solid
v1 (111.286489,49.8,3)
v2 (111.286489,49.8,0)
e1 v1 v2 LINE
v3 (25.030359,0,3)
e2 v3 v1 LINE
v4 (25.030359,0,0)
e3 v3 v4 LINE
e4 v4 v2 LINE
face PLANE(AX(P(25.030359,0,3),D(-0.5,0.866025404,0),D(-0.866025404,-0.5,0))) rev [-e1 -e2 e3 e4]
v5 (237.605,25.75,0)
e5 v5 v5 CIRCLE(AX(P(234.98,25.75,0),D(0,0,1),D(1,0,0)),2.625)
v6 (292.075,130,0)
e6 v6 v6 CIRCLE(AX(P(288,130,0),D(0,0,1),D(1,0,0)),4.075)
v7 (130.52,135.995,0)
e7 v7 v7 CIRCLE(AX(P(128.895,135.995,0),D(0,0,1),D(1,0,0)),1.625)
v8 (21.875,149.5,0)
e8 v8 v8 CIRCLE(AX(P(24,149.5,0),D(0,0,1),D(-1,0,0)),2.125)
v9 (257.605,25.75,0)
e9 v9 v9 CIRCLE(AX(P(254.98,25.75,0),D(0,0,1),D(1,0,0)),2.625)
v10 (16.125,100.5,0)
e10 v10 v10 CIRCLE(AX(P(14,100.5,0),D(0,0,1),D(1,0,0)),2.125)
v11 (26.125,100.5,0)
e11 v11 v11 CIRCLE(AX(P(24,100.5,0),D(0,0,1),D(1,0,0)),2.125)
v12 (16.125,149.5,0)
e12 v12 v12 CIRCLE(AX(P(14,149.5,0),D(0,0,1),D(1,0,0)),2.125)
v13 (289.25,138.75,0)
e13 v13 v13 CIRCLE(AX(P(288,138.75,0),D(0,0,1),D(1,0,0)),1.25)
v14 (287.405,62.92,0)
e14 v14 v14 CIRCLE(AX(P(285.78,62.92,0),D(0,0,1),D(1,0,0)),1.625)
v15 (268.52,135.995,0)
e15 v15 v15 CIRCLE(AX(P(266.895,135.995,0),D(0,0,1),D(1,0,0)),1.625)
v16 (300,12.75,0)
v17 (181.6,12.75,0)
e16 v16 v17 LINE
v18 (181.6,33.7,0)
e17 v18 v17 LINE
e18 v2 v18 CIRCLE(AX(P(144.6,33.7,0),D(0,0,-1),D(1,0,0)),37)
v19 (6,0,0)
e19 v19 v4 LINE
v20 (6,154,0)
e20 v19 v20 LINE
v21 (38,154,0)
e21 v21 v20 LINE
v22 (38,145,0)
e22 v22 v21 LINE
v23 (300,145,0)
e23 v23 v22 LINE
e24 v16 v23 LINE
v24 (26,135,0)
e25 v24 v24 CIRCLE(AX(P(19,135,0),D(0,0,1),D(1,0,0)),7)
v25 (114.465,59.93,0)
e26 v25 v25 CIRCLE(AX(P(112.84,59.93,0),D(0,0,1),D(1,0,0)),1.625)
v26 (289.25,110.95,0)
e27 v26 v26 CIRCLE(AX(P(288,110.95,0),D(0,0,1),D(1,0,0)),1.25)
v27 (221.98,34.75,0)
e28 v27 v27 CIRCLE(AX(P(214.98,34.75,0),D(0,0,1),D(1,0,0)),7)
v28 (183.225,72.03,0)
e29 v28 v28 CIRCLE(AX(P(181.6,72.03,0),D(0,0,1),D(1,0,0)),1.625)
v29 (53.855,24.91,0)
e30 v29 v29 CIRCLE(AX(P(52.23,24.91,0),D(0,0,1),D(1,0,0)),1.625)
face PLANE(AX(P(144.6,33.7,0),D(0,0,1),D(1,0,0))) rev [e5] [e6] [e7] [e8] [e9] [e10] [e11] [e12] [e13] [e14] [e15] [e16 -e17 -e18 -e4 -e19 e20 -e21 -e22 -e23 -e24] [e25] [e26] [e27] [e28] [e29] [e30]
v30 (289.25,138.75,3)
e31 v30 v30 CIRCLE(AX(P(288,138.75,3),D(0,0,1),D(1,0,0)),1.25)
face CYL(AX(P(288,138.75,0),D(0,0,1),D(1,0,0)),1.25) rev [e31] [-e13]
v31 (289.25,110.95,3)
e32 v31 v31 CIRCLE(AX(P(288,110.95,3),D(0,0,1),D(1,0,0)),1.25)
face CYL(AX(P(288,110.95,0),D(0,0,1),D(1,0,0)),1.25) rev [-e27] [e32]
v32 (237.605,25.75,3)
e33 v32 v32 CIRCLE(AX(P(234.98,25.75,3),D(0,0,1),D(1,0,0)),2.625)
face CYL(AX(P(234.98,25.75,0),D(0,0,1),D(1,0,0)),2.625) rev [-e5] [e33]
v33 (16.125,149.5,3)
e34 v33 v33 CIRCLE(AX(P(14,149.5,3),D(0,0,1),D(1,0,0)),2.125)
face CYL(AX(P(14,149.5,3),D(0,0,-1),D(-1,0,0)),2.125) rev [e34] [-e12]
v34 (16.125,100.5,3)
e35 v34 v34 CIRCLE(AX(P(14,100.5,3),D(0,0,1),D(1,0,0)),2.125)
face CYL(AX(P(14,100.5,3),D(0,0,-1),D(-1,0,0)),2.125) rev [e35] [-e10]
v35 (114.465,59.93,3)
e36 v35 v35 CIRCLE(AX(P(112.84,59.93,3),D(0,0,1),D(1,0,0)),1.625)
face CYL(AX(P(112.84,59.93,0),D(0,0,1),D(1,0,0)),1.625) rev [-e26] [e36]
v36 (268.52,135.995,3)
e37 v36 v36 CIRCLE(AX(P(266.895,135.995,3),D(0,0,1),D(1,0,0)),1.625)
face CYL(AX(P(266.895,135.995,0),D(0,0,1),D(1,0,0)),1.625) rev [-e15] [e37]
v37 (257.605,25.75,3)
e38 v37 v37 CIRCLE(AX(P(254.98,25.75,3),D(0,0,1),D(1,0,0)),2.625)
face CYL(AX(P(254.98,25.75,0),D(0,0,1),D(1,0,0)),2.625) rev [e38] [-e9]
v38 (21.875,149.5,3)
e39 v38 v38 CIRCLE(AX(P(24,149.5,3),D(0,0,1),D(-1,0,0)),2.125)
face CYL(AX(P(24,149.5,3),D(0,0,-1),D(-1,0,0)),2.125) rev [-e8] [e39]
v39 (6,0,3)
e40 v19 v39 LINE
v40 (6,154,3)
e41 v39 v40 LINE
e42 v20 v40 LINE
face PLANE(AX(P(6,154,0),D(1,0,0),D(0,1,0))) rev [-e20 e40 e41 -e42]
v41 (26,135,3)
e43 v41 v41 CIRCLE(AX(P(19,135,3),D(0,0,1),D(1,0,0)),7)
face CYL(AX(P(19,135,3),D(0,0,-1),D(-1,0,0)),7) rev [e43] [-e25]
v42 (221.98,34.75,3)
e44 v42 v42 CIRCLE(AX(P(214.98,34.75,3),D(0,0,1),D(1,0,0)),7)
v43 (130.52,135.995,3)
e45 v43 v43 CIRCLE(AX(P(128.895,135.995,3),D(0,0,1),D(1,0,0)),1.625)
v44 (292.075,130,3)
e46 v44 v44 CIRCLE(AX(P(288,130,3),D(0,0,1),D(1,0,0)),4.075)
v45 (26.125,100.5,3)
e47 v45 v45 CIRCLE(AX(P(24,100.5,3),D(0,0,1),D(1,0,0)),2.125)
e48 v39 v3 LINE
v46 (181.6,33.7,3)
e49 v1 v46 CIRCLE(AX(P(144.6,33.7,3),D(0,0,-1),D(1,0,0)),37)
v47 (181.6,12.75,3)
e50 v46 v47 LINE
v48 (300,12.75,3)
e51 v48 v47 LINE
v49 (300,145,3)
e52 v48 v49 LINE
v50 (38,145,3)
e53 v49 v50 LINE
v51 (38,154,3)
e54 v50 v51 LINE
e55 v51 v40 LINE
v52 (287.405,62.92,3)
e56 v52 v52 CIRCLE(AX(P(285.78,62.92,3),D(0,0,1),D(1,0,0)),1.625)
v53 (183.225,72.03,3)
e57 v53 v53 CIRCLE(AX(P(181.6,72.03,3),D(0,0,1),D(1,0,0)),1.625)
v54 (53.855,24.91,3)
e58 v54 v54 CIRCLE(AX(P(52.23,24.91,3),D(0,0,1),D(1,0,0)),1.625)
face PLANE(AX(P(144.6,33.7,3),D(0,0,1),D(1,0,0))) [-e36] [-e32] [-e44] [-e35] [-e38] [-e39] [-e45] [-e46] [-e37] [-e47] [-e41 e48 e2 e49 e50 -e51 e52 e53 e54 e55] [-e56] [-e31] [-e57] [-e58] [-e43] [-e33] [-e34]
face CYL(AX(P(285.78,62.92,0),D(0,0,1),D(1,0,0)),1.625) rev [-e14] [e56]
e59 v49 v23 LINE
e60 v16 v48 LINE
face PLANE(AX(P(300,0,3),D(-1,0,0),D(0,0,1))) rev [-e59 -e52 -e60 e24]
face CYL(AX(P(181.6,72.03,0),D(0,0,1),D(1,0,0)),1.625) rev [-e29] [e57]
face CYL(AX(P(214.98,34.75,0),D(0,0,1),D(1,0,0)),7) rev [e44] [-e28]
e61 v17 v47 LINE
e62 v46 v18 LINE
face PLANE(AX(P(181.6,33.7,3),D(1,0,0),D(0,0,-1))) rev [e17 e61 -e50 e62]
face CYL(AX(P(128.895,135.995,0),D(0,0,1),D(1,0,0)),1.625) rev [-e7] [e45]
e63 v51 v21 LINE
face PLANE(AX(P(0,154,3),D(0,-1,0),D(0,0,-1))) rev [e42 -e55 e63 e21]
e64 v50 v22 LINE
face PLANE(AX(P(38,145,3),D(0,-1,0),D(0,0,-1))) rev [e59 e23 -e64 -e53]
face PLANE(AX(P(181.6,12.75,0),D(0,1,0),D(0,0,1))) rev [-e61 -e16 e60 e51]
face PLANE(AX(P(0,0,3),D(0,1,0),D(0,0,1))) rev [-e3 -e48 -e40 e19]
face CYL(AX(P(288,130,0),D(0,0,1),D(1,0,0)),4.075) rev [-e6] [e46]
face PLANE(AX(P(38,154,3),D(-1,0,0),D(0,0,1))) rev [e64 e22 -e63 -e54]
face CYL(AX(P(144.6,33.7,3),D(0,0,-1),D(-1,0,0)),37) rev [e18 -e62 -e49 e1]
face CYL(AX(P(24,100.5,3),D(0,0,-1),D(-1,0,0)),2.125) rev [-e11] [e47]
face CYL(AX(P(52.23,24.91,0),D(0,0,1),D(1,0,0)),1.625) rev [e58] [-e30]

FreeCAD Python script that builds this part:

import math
import FreeCAD as App
import Part
import Sketcher

V = App.Vector
Q = App.Units.Quantity

doc = App.newDocument("Part")
params = doc.addObject("Spreadsheet::Sheet", "Params")
for row, (alias, value) in enumerate([
    ("sketch1_diameter", "14 mm"),
    ("sketch1_radius", "37 mm"),
    ("sketch1_diameter2", "4.25 mm"),
    ("sketch1_width", "262 mm"),
    ("sketch1_width2", "38 mm"),
    ("pad1_length", "3 mm"),
    ("sketch2_width", "118.4 mm"),
    ("sketch2_height", "12.75 mm"),
    ("sketch3_diameter", "14 mm"),
    ("sketch3_diameter2", "2.5 mm"),
    ("sketch3_diameter3", "5.25 mm"),
    ("sketch3_diameter4", "8.15 mm"),
    ("sketch3_diameter5", "3.25 mm"),
], start=1):
    params.set(f"A{row}", alias)
    params.set(f"B{row}", "=" + value)
    params.setAlias(f"B{row}", alias)

body = doc.addObject("PartDesign::Body", "Body")

# Sketch on XY plane
sketch1 = doc.addObject("Sketcher::SketchObject", "Sketch")
body.addObject(sketch1)
sketch1.AttachmentSupport = (doc.XY_Plane, [""])
sketch1.MapMode = "FlatFace"
sketch1.addGeometry([
    Part.LineSegment(V(25, 0, 0), V(111.3, 49.8, 0)),  # 0
    Part.ArcOfCircle(Part.Circle(V(144.6, 33.7, 0), V(0, 0, 1), 37), math.radians(0), math.radians(154)),  # 1
    Part.LineSegment(V(181.6, 33.7, 0), V(181.6, 0, 0)),  # 2
    Part.LineSegment(V(181.6, 0, 0), V(300, 0, 0)),  # 3
    Part.LineSegment(V(300, 0, 0), V(300, 145, 0)),  # 4
    Part.LineSegment(V(300, 145, 0), V(38, 145, 0)),  # 5
    Part.LineSegment(V(38, 145, 0), V(38, 154, 0)),  # 6
    Part.LineSegment(V(38, 154, 0), V(0, 154, 0)),  # 7
    Part.LineSegment(V(0, 154, 0), V(0, 0, 0)),  # 8
    Part.LineSegment(V(0, 0, 0), V(25, 0, 0)),  # 9
    Part.Circle(V(14, 100.5, 0), V(0, 0, 1), 2.1),  # 10
    Part.Circle(V(24, 100.5, 0), V(0, 0, 1), 2.1),  # 11
    Part.Circle(V(14, 149.5, 0), V(0, 0, 1), 2.1),  # 12
    Part.Circle(V(19, 135, 0), V(0, 0, 1), 7),  # 13
    Part.Circle(V(24, 149.5, 0), V(0, 0, 1), 2.1),  # 14
], False)
sketch1.addConstraint([
    Sketcher.Constraint("Coincident", 0, 2, 1, 2),
    Sketcher.Constraint("Tangent", 1, 1, 2, 1),
    Sketcher.Constraint("Coincident", 2, 2, 3, 1),
    Sketcher.Constraint("Coincident", 3, 2, 4, 1),
    Sketcher.Constraint("Coincident", 4, 2, 5, 1),
    Sketcher.Constraint("Coincident", 5, 2, 6, 1),
    Sketcher.Constraint("Coincident", 6, 2, 7, 1),
    Sketcher.Constraint("Coincident", 7, 2, 8, 1),
    Sketcher.Constraint("Coincident", 8, 2, 9, 1),
    Sketcher.Constraint("Coincident", 9, 2, 0, 1),
    Sketcher.Constraint("Vertical", 2),
    Sketcher.Constraint("Horizontal", 3),
    Sketcher.Constraint("Vertical", 4),
    Sketcher.Constraint("Horizontal", 5),
    Sketcher.Constraint("Vertical", 6),
    Sketcher.Constraint("Horizontal", 7),
    Sketcher.Constraint("Vertical", 8),
    Sketcher.Constraint("Horizontal", 9),
    Sketcher.Constraint("Coincident", 8, 2, -1, 1),
    Sketcher.Constraint("Equal", 10, 11),
    Sketcher.Constraint("Equal", 11, 12),
    Sketcher.Constraint("Equal", 12, 14),
    Sketcher.Constraint("PointOnObject", 2, 2, -1),
    Sketcher.Constraint("Horizontal", 10, 3, 11, 3),
    Sketcher.Constraint("Horizontal", 12, 3, 14, 3),
    Sketcher.Constraint("Vertical", 10, 3, 12, 3),
    Sketcher.Constraint("Vertical", 11, 3, 14, 3),
    Sketcher.Constraint("Diameter", 13, 14.0),
    Sketcher.Constraint("Radius", 1, 37.0),
    Sketcher.Constraint("Diameter", 10, 4.25),
    Sketcher.Constraint("DistanceX", 5, 2, 5, 1, 262.0),
    Sketcher.Constraint("DistanceX", 7, 2, 7, 1, 38.0),
    Sketcher.Constraint("DistanceY", 4, 1, 4, 2, 145.0),
    Sketcher.Constraint("DistanceY", 6, 1, 6, 2, 9.0),
    Sketcher.Constraint("Angle", 0, Q("30 deg")),
    Sketcher.Constraint("DistanceX", 3, 1, 3, 2, 118.4),
    Sketcher.Constraint("DistanceY", 2, 2, 2, 1, 33.7),
    Sketcher.Constraint("DistanceX", -1, 1, 10, 3, 14.0),
    Sketcher.Constraint("DistanceX", -1, 1, 11, 3, 24.0),
    Sketcher.Constraint("DistanceX", -1, 1, 13, 3, 19.0),
    Sketcher.Constraint("DistanceY", -1, 1, 13, 3, 135.0),
    Sketcher.Constraint("DistanceY", 10, 3, 12, 3, 49.0),
    Sketcher.Constraint("Distance", 0, 99.6),
    Sketcher.Constraint("DistanceY", -1, 1, 10, 3, 100.5),
])
sketch1.setExpression("Constraints[27]", "Params.sketch1_diameter")
sketch1.setExpression("Constraints[28]", "Params.sketch1_radius")
sketch1.setExpression("Constraints[29]", "Params.sketch1_diameter2")
sketch1.setExpression("Constraints[30]", "Params.sketch1_width")
sketch1.setExpression("Constraints[31]", "Params.sketch1_width2")
pad1 = doc.addObject("PartDesign::Pad", "Pad")
body.addObject(pad1)
pad1.Profile = sketch1
pad1.setExpression("Length", "Params.pad1_length")

# Sketch on XY plane
sketch2 = doc.addObject("Sketcher::SketchObject", "Sketch001")
body.addObject(sketch2)
sketch2.AttachmentSupport = (doc.XY_Plane, [""])
sketch2.MapMode = "FlatFace"
sketch2.AttachmentOffset = App.Placement(V(0, 0, 3), App.Rotation())
sketch2.addGeometry([
    Part.LineSegment(V(182, 13, 0), V(182, 0, 0)),
    Part.LineSegment(V(182, 0, 0), V(300, 0, 0)),
    Part.LineSegment(V(300, 0, 0), V(300, 13, 0)),
    Part.LineSegment(V(300, 13, 0), V(182, 13, 0)),
], False)
sketch2.addConstraint([
    Sketcher.Constraint("Coincident", 0, 2, 1, 1),
    Sketcher.Constraint("Coincident", 1, 2, 2, 1),
    Sketcher.Constraint("Coincident", 2, 2, 3, 1),
    Sketcher.Constraint("Coincident", 3, 2, 0, 1),
    Sketcher.Constraint("Vertical", 0),
    Sketcher.Constraint("Horizontal", 1),
    Sketcher.Constraint("Vertical", 2),
    Sketcher.Constraint("Horizontal", 3),
    Sketcher.Constraint("PointOnObject", 0, 2, -1),
    Sketcher.Constraint("DistanceX", 1, 1, 1, 2, 118.4),
    Sketcher.Constraint("DistanceX", -1, 1, 1, 2, 300.0),
    Sketcher.Constraint("DistanceY", 0, 2, 0, 1, 12.75),
])
sketch2.setExpression("Constraints[9]", "Params.sketch2_width")
sketch2.setExpression("Constraints[11]", "Params.sketch2_height")
pocket1 = doc.addObject("PartDesign::Pocket", "Pocket")
body.addObject(pocket1)
pocket1.Profile = sketch2
pocket1.Type = "ThroughAll"

# Sketch on XY plane
sketch3 = doc.addObject("Sketcher::SketchObject", "Sketch002")
body.addObject(sketch3)
sketch3.AttachmentSupport = (doc.XY_Plane, [""])
sketch3.MapMode = "FlatFace"
sketch3.AttachmentOffset = App.Placement(V(0, 0, 3), App.Rotation())
sketch3.addGeometry([
    Part.Circle(V(255, 25.8, 0), V(0, 0, 1), 2.6),  # 0
    Part.Circle(V(235, 25.8, 0), V(0, 0, 1), 2.6),  # 1
    Part.Circle(V(288, 130, 0), V(0, 0, 1), 4.1),  # 2
    Part.Circle(V(288, 138.8, 0), V(0, 0, 1), 1.2),  # 3
    Part.Circle(V(288, 111, 0), V(0, 0, 1), 1.2),  # 4
    Part.Circle(V(285.8, 62.9, 0), V(0, 0, 1), 1.6),  # 5
    Part.Circle(V(181.6, 72, 0), V(0, 0, 1), 1.6),  # 6
    Part.Circle(V(52.2, 24.9, 0), V(0, 0, 1), 1.6),  # 7
    Part.Circle(V(112.8, 59.9, 0), V(0, 0, 1), 1.6),  # 8
    Part.Circle(V(266.9, 136, 0), V(0, 0, 1), 1.6),  # 9
    Part.Circle(V(128.9, 136, 0), V(0, 0, 1), 1.6),  # 10
    Part.Circle(V(215, 34.8, 0), V(0, 0, 1), 7),  # 11
    Part.LineSegment(V(0, 154, 0), V(0, 0, 0)),  # 12
    Part.LineSegment(V(0, 0, 0), V(6, 0, 0)),  # 13
    Part.LineSegment(V(6, 0, 0), V(6, 154, 0)),  # 14
    Part.LineSegment(V(6, 154, 0), V(0, 154, 0)),  # 15
], False)
sketch3.addConstraint([
    Sketcher.Constraint("Coincident", 12, 2, 13, 1),
    Sketcher.Constraint("Coincident", 13, 2, 14, 1),
    Sketcher.Constraint("Coincident", 14, 2, 15, 1),
    Sketcher.Constraint("Coincident", 15, 2, 12, 1),
    Sketcher.Constraint("Vertical", 12),
    Sketcher.Constraint("Horizontal", 13),
    Sketcher.Constraint("Vertical", 14),
    Sketcher.Constraint("Horizontal", 15),
    Sketcher.Constraint("Coincident", 12, 2, -1, 1),
    Sketcher.Constraint("Equal", 0, 1),
    Sketcher.Constraint("Equal", 3, 4),
    Sketcher.Constraint("Equal", 5, 6),
    Sketcher.Constraint("Equal", 6, 7),
    Sketcher.Constraint("Equal", 7, 8),
    Sketcher.Constraint("Equal", 8, 9),
    Sketcher.Constraint("Equal", 9, 10),
    Sketcher.Constraint("Horizontal", 0, 3, 1, 3),
    Sketcher.Constraint("Horizontal", 9, 3, 10, 3),
    Sketcher.Constraint("Vertical", 2, 3, 3, 3),
    Sketcher.Constraint("Vertical", 3, 3, 4, 3),
    Sketcher.Constraint("Diameter", 11, 14.0),
    Sketcher.Constraint("Diameter", 3, 2.5),
    Sketcher.Constraint("Diameter", 0, 5.25),
    Sketcher.Constraint("Diameter", 2, 8.15),
    Sketcher.Constraint("Diameter", 5, 3.25),
    Sketcher.Constraint("DistanceX", 13, 1, 13, 2, 6.0),
    Sketcher.Constraint("DistanceY", 12, 2, 12, 1, 154.0),
    Sketcher.Constraint("DistanceX", -1, 1, 2, 3, 288.0),
    Sketcher.Constraint("DistanceY", -1, 1, 2, 3, 130.0),
    Sketcher.Constraint("DistanceX", 1, 3, 0, 3, 20.0),
    Sketcher.Constraint("DistanceY", 0, 3, 3, 3, 113.0),
    Sketcher.Constraint("DistanceX", 10, 3, 9, 3, 138.0),
    Sketcher.Constraint("DistanceX", 11, 3, 1, 3, 20.0),
    Sketcher.Constraint("DistanceY", 1, 3, 11, 3, 9.0),
    Sketcher.Constraint("DistanceX", -1, 1, 6, 3, 181.6),
    Sketcher.Constraint("DistanceY", 4, 3, 3, 3, 27.8),
    Sketcher.Constraint("DistanceX", 0, 3, 5, 3, 30.8),
    Sketcher.Constraint("DistanceY", 8, 3, 6, 3, 12.1),
    Sketcher.Constraint("DistanceX", -1, 1, 0, 3, 254.98),
    Sketcher.Constraint("DistanceY", -1, 1, 0, 3, 25.75),
    Sketcher.Constraint("DistanceY", -1, 1, 5, 3, 62.92),
    Sketcher.Constraint("DistanceY", -1, 1, 6, 3, 72.03),
    Sketcher.Constraint("DistanceX", -1, 1, 7, 3, 52.23),
    Sketcher.Constraint("DistanceY", -1, 1, 7, 3, 24.91),
    Sketcher.Constraint("DistanceX", -1, 1, 8, 3, 112.84),
    Sketcher.Constraint("DistanceX", -1, 1, 9, 3, 266.895),
    Sketcher.Constraint("DistanceY", -1, 1, 9, 3, 135.995),
])
sketch3.setExpression("Constraints[20]", "Params.sketch3_diameter")
sketch3.setExpression("Constraints[21]", "Params.sketch3_diameter2")
sketch3.setExpression("Constraints[22]", "Params.sketch3_diameter3")
sketch3.setExpression("Constraints[23]", "Params.sketch3_diameter4")
sketch3.setExpression("Constraints[24]", "Params.sketch3_diameter5")
pocket2 = doc.addObject("PartDesign::Pocket", "Pocket001")
body.addObject(pocket2)
pocket2.Profile = sketch3
pocket2.Type = "ThroughAll"

doc.recompute()
